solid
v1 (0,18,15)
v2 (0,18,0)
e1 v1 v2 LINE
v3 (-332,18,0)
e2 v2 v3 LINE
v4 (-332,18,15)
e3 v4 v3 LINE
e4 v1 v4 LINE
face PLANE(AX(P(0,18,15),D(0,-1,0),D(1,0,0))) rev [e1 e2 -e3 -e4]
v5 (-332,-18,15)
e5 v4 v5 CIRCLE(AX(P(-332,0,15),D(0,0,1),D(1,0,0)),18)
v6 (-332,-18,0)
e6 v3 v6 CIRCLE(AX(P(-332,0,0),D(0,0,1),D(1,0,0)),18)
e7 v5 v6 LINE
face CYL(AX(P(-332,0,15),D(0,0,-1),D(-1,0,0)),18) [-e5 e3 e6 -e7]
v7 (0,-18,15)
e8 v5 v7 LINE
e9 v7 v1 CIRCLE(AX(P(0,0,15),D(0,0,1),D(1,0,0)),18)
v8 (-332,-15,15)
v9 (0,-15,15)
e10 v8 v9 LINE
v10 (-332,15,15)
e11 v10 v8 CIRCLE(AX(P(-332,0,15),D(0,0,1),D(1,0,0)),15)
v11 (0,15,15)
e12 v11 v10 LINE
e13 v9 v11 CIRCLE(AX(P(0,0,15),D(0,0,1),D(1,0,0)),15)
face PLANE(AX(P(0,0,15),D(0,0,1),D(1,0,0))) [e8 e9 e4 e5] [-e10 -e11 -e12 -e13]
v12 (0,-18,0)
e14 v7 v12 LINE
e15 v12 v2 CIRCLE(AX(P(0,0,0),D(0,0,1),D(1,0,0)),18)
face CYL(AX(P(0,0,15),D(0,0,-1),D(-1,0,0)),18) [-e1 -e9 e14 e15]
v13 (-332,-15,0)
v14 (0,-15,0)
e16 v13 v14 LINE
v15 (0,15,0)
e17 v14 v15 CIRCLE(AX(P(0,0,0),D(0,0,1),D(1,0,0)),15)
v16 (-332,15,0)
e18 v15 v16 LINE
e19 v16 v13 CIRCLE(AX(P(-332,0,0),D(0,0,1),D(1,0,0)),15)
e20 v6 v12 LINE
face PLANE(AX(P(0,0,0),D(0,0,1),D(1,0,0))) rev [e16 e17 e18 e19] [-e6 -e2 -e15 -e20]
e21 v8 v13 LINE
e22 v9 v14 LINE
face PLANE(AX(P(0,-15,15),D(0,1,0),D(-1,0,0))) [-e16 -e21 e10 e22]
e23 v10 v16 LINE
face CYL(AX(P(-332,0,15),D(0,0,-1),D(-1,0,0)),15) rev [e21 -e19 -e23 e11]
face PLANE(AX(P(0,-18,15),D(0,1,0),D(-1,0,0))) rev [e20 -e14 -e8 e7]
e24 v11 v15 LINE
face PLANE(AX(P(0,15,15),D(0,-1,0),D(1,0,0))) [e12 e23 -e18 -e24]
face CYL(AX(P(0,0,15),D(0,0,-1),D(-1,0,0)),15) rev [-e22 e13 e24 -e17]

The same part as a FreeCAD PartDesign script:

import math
import FreeCAD as App
import Part
import Sketcher
from FreeCAD import Vector
Q = App.Units.Quantity

doc = App.newDocument("Part")
body = doc.addObject("PartDesign::Body", "Body")

sketch1 = body.newObject("Sketcher::SketchObject", "Sketch")
sketch1.AttachmentSupport = (doc.getObject("XY_Plane"), [""])
sketch1.MapMode = "FlatFace"
sketch1.addGeometry([
    Part.LineSegment(Vector(-332, -18, 0), Vector(0, -18, 0)),
    Part.ArcOfCircle(Part.Circle(Vector(0, 0, 0), Vector(0, 0, 1), 18), math.radians(-90), math.radians(90)),
    Part.LineSegment(Vector(0, 18, 0), Vector(-332, 18, 0)),
    Part.ArcOfCircle(Part.Circle(Vector(-332, 0, 0), Vector(0, 0, 1), 18), math.radians(90), math.radians(270)),
    Part.LineSegment(Vector(0, -15, 0), Vector(-332, -15, 0)),
    Part.ArcOfCircle(Part.Circle(Vector(-332, 0, 0), Vector(0, 0, 1), 15), math.radians(90), math.radians(270)),
    Part.LineSegment(Vector(-332, 15, 0), Vector(0, 15, 0)),
    Part.ArcOfCircle(Part.Circle(Vector(0, 0, 0), Vector(0, 0, 1), 15), math.radians(-90), math.radians(90)),
], False)
sketch1.addConstraint([
    Sketcher.Constraint("Tangent", 0, 2, 1, 1),
    Sketcher.Constraint("Tangent", 1, 2, 2, 1),
    Sketcher.Constraint("Tangent", 2, 2, 3, 1),
    Sketcher.Constraint("Tangent", 3, 2, 0, 1),
    Sketcher.Constraint("Tangent", 4, 2, 5, 2),
    Sketcher.Constraint("Tangent", 5, 1, 6, 1),
    Sketcher.Constraint("Tangent", 6, 2, 7, 2),
    Sketcher.Constraint("Tangent", 7, 1, 4, 1),
    Sketcher.Constraint("Horizontal", 0),
    Sketcher.Constraint("Horizontal", 2),
    Sketcher.Constraint("Horizontal", 4),
    Sketcher.Constraint("Horizontal", 6),
    Sketcher.Constraint("Coincident", 1, 3, -1, 1),
    Sketcher.Constraint("Coincident", 7, 3, -1, 1),
    Sketcher.Constraint("Vertical", 5, 3, 2, 2),
    Sketcher.Constraint("Radius", 1, Q("18 mm")),
    Sketcher.Constraint("Radius", 5, Q("15 mm")),
    Sketcher.Constraint("DistanceX", 0, 1, 0, 2, Q("332 mm")),
])
pad1 = body.newObject("PartDesign::Pad", "Pad")
pad1.Profile = sketch1
pad1.Length = 15

doc.recompute()
